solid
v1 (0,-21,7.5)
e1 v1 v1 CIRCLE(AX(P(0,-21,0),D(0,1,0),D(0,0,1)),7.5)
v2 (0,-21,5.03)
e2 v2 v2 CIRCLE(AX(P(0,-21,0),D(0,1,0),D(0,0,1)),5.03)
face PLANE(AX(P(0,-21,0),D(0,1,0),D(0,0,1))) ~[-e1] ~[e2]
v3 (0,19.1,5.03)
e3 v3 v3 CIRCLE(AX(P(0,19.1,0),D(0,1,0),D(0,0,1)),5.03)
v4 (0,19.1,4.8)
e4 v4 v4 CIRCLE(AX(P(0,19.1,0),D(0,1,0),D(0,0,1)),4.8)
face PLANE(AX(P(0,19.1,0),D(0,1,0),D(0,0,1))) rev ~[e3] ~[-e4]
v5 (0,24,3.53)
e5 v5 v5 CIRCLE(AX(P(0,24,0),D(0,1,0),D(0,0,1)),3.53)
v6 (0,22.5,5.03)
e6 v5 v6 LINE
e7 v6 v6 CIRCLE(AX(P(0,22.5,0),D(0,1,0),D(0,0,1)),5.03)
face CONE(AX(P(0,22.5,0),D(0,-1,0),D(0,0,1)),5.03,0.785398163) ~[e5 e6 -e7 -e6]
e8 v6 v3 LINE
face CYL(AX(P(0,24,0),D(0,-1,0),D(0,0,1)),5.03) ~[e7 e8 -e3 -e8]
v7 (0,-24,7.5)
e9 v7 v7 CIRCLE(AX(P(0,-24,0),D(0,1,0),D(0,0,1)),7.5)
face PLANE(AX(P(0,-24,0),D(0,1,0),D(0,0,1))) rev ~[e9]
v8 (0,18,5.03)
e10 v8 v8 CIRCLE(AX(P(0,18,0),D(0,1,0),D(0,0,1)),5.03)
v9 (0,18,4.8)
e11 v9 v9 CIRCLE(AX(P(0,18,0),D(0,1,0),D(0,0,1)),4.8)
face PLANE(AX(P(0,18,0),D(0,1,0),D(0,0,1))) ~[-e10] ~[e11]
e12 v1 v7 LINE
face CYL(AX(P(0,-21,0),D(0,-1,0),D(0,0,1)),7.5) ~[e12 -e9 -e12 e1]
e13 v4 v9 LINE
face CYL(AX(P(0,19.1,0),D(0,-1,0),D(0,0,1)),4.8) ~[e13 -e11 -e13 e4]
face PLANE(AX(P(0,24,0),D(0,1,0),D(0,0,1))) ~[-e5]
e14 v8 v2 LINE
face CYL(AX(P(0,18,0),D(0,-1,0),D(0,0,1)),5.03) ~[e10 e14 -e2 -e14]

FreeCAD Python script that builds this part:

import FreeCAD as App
import Part
import Sketcher


def edges_at(feature, points):
    """Names of the edges that pass closest to the given points."""
    edges = feature.Shape.Edges
    near = lambda p: min(range(len(edges)), key=lambda i: edges[i].distToShape(Part.Vertex(*p))[0])
    return sorted({f"Edge{near(p) + 1}" for p in points})


def add_polygon(sketch, points):
    """Adds a closed chain of lines whose ends are joined by coincident constraints."""
    first, n = sketch.GeometryCount, len(points)
    for a, b in zip(points, points[1:] + points[:1]):
        sketch.addGeometry(Part.LineSegment(App.Vector(*a, 0), App.Vector(*b, 0)), False)
    for i in range(n):
        sketch.addConstraint(Sketcher.Constraint("Coincident", first + i, 2, first + (i + 1) % n, 1))

doc = App.newDocument("Part")
params = doc.addObject("Spreadsheet::Sheet", "Params")
for row, (alias, value) in enumerate([
    ("sketch1_width", "3 mm"),
    ("sketch1_width2", "48 mm"),
    ("sketch1_width3", "39 mm"),
    ("sketch1_width4", "4.9 mm"),
    ("sketch1_height", "7.5 mm"),
    ("revolution_angle", "360 deg"),
    ("chamfer_size", "1.5 mm"),
], start=1):
    params.set(f"A{row}", alias)
    params.set(f"B{row}", "=" + value)
    params.setAlias(f"B{row}", alias)

body = doc.addObject("PartDesign::Body", "Body")

# Sketch on YZ plane
sketch1 = doc.addObject("Sketcher::SketchObject", "Sketch")
body.addObject(sketch1)
sketch1.AttachmentSupport = (doc.YZ_Plane, [""])
sketch1.MapMode = "FlatFace"
add_polygon(sketch1, [(-21, 5.03), (-21, 7.5), (-24, 7.5), (-24, 0), (24, 0), (24, 5.03), (19.1, 5.03), (19.1, 4.8), (18, 4.8), (18, 5.03)])  # lines 0-9
sketch1.addConstraint([
    Sketcher.Constraint("Vertical", 0),
    Sketcher.Constraint("Horizontal", 1),
    Sketcher.Constraint("Vertical", 2),
    Sketcher.Constraint("Horizontal", 3),
    Sketcher.Constraint("Vertical", 4),
    Sketcher.Constraint("Horizontal", 5),
    Sketcher.Constraint("Vertical", 6),
    Sketcher.Constraint("Horizontal", 7),
    Sketcher.Constraint("Vertical", 8),
    Sketcher.Constraint("Horizontal", 9),
    Sketcher.Constraint("Symmetric", 2, 2, 3, 2, -1, 1),
    Sketcher.Constraint("Horizontal", 5, 2, 8, 2),
    Sketcher.Constraint("DistanceX", 1, 2, 1, 1, 3.0),
    Sketcher.Constraint("DistanceX", 3, 1, 3, 2, 48.0),
    Sketcher.Constraint("DistanceX", 9, 2, 9, 1, 39.0),
    Sketcher.Constraint("DistanceX", 5, 2, 5, 1, 4.9),
    Sketcher.Constraint("DistanceY", 2, 2, 2, 1, 7.5),
    Sketcher.Constraint("DistanceY", 0, 1, 0, 2, 2.47),
    Sketcher.Constraint("DistanceY", 6, 2, 6, 1, 0.23),
])
sketch1.setExpression("Constraints[22]", "Params.sketch1_width")
sketch1.setExpression("Constraints[23]", "Params.sketch1_width2")
sketch1.setExpression("Constraints[24]", "Params.sketch1_width3")
sketch1.setExpression("Constraints[25]", "Params.sketch1_width4")
sketch1.setExpression("Constraints[26]", "Params.sketch1_height")
revolution = doc.addObject("PartDesign::Revolution", "Revolution")
body.addObject(revolution)
revolution.Profile = sketch1
revolution.ReferenceAxis = (sketch1, ["H_Axis"])
revolution.setExpression("Angle", "Params.revolution_angle")
doc.recompute()

chamfer = doc.addObject("PartDesign::Chamfer", "Chamfer")
body.addObject(chamfer)
chamfer.Base = (revolution, edges_at(revolution, [(0, 24, -5.03)]))
chamfer.setExpression("Size", "Params.chamfer_size")

doc.recompute()
